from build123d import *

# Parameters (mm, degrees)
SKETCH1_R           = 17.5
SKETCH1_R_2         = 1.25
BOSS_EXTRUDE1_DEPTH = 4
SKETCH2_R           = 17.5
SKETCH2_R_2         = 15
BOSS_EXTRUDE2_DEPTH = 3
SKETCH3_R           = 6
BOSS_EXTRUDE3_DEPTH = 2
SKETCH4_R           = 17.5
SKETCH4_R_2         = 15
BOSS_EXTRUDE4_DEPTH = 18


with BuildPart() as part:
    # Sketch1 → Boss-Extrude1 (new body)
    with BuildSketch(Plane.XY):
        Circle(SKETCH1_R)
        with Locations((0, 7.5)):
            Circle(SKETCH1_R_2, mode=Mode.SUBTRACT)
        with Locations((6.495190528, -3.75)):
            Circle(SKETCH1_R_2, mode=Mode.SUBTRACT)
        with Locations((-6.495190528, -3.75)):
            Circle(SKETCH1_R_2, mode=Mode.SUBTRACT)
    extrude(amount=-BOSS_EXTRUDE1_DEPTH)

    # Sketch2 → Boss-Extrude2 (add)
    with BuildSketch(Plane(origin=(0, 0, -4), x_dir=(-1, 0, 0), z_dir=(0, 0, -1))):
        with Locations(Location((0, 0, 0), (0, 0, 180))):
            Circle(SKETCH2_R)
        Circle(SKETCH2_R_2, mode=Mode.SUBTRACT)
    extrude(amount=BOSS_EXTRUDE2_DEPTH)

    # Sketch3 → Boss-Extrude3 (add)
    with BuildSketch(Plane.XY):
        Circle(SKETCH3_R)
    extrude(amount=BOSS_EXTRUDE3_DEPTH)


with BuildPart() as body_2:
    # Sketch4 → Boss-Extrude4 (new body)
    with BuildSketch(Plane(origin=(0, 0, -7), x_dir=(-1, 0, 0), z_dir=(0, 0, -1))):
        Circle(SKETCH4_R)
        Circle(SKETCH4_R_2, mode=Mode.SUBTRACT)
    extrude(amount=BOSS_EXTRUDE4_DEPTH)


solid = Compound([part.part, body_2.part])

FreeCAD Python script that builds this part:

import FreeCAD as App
import Part
import Sketcher
Q = App.Units.Quantity

doc = App.newDocument("Part")
body = doc.addObject("PartDesign::Body", "Body")

sketch1 = body.newObject("Sketcher::SketchObject", "Sketch")
sketch1.AttachmentSupport = (doc.getObject("XY_Plane"), [""])
sketch1.MapMode = "FlatFace"
sketch1.addGeometry(Part.Circle(App.Vector(0, 0, 0), App.Vector(0, 0, 1), 17.5), False)
sketch1.addGeometry(Part.Circle(App.Vector(-6.5, -3.8, 0), App.Vector(0, 0, 1), 1.2), False)
sketch1.addGeometry(Part.Circle(App.Vector(6.5, -3.8, 0), App.Vector(0, 0, 1), 1.2), False)
sketch1.addGeometry(Part.Circle(App.Vector(0, 7.5, 0), App.Vector(0, 0, 1), 1.2), False)
sketch1.addConstraint(Sketcher.Constraint("Coincident", 0, 3, -1, 1))
sketch1.addConstraint(Sketcher.Constraint("Equal", 1, 2))
sketch1.addConstraint(Sketcher.Constraint("Equal", 2, 3))
sketch1.addConstraint(Sketcher.Constraint("Symmetric", 1, 3, 2, 3, -2))
sketch1.addConstraint(Sketcher.Constraint("PointOnObject", 3, 3, -2))
sketch1.addConstraint(Sketcher.Constraint("Diameter", 0, Q("35 mm")))
sketch1.addConstraint(Sketcher.Constraint("Diameter", 1, Q("2.5 mm")))
sketch1.addConstraint(Sketcher.Constraint("DistanceY", -1, 1, 3, 3, Q("7.5 mm")))
sketch1.addConstraint(Sketcher.Constraint("DistanceY", 1, 3, -1, 1, Q("3.75 mm")))
sketch1.addConstraint(Sketcher.Constraint("DistanceX", 1, 3, -1, 1, Q("6.495191 mm")))
pad1 = body.newObject("PartDesign::Pad", "Pad")
pad1.Profile = sketch1
pad1.Length = 4
pad1.Reversed = True

sketch2 = body.newObject("Sketcher::SketchObject", "Sketch001")
sketch2.AttachmentSupport = (doc.getObject("XY_Plane"), [""])
sketch2.MapMode = "FlatFace"
sketch2.AttachmentOffset = App.Placement(App.Vector(0, 0, -4), App.Rotation())
sketch2.addGeometry(Part.Circle(App.Vector(0, 0, 0), App.Vector(0, 0, 1), 18), False)
sketch2.addGeometry(Part.Circle(App.Vector(0, 0, 0), App.Vector(0, 0, 1), 15), False)
sketch2.addConstraint(Sketcher.Constraint("Coincident", 0, 3, -1, 1))
sketch2.addConstraint(Sketcher.Constraint("Coincident", 1, 3, -1, 1))
sketch2.addConstraint(Sketcher.Constraint("Diameter", 0, Q("35 mm")))
sketch2.addConstraint(Sketcher.Constraint("Diameter", 1, Q("30 mm")))
pad2 = body.newObject("PartDesign::Pad", "Pad001")
pad2.Profile = sketch2
pad2.Length = 3
pad2.Reversed = True

sketch3 = body.newObject("Sketcher::SketchObject", "Sketch002")
sketch3.AttachmentSupport = (doc.getObject("XY_Plane"), [""])
sketch3.MapMode = "FlatFace"
sketch3.addGeometry(Part.Circle(App.Vector(0, 0, 0), App.Vector(0, 0, 1), 6), False)
sketch3.addConstraint(Sketcher.Constraint("Coincident", 0, 3, -1, 1))
sketch3.addConstraint(Sketcher.Constraint("Diameter", 0, Q("12 mm")))
pad3 = body.newObject("PartDesign::Pad", "Pad002")
pad3.Profile = sketch3
pad3.Length = 2
body2 = doc.addObject("PartDesign::Body", "Body001")

sketch4 = body2.newObject("Sketcher::SketchObject", "Sketch003")
sketch4.AttachmentSupport = (doc.getObject("XY_Plane001"), [""])
sketch4.MapMode = "FlatFace"
sketch4.AttachmentOffset = App.Placement(App.Vector(0, 0, -7), App.Rotation())
sketch4.addGeometry(Part.Circle(App.Vector(0, 0, 0), App.Vector(0, 0, 1), 18), False)
sketch4.addGeometry(Part.Circle(App.Vector(0, 0, 0), App.Vector(0, 0, 1), 15), False)
sketch4.addConstraint(Sketcher.Constraint("Coincident", 0, 3, -1, 1))
sketch4.addConstraint(Sketcher.Constraint("Coincident", 1, 3, -1, 1))
sketch4.addConstraint(Sketcher.Constraint("Diameter", 0, Q("35 mm")))
sketch4.addConstraint(Sketcher.Constraint("Diameter", 1, Q("30 mm")))
pad4 = body2.newObject("PartDesign::Pad", "Pad003")
pad4.Profile = sketch4
pad4.Length = 18
pad4.Reversed = True

doc.recompute()
